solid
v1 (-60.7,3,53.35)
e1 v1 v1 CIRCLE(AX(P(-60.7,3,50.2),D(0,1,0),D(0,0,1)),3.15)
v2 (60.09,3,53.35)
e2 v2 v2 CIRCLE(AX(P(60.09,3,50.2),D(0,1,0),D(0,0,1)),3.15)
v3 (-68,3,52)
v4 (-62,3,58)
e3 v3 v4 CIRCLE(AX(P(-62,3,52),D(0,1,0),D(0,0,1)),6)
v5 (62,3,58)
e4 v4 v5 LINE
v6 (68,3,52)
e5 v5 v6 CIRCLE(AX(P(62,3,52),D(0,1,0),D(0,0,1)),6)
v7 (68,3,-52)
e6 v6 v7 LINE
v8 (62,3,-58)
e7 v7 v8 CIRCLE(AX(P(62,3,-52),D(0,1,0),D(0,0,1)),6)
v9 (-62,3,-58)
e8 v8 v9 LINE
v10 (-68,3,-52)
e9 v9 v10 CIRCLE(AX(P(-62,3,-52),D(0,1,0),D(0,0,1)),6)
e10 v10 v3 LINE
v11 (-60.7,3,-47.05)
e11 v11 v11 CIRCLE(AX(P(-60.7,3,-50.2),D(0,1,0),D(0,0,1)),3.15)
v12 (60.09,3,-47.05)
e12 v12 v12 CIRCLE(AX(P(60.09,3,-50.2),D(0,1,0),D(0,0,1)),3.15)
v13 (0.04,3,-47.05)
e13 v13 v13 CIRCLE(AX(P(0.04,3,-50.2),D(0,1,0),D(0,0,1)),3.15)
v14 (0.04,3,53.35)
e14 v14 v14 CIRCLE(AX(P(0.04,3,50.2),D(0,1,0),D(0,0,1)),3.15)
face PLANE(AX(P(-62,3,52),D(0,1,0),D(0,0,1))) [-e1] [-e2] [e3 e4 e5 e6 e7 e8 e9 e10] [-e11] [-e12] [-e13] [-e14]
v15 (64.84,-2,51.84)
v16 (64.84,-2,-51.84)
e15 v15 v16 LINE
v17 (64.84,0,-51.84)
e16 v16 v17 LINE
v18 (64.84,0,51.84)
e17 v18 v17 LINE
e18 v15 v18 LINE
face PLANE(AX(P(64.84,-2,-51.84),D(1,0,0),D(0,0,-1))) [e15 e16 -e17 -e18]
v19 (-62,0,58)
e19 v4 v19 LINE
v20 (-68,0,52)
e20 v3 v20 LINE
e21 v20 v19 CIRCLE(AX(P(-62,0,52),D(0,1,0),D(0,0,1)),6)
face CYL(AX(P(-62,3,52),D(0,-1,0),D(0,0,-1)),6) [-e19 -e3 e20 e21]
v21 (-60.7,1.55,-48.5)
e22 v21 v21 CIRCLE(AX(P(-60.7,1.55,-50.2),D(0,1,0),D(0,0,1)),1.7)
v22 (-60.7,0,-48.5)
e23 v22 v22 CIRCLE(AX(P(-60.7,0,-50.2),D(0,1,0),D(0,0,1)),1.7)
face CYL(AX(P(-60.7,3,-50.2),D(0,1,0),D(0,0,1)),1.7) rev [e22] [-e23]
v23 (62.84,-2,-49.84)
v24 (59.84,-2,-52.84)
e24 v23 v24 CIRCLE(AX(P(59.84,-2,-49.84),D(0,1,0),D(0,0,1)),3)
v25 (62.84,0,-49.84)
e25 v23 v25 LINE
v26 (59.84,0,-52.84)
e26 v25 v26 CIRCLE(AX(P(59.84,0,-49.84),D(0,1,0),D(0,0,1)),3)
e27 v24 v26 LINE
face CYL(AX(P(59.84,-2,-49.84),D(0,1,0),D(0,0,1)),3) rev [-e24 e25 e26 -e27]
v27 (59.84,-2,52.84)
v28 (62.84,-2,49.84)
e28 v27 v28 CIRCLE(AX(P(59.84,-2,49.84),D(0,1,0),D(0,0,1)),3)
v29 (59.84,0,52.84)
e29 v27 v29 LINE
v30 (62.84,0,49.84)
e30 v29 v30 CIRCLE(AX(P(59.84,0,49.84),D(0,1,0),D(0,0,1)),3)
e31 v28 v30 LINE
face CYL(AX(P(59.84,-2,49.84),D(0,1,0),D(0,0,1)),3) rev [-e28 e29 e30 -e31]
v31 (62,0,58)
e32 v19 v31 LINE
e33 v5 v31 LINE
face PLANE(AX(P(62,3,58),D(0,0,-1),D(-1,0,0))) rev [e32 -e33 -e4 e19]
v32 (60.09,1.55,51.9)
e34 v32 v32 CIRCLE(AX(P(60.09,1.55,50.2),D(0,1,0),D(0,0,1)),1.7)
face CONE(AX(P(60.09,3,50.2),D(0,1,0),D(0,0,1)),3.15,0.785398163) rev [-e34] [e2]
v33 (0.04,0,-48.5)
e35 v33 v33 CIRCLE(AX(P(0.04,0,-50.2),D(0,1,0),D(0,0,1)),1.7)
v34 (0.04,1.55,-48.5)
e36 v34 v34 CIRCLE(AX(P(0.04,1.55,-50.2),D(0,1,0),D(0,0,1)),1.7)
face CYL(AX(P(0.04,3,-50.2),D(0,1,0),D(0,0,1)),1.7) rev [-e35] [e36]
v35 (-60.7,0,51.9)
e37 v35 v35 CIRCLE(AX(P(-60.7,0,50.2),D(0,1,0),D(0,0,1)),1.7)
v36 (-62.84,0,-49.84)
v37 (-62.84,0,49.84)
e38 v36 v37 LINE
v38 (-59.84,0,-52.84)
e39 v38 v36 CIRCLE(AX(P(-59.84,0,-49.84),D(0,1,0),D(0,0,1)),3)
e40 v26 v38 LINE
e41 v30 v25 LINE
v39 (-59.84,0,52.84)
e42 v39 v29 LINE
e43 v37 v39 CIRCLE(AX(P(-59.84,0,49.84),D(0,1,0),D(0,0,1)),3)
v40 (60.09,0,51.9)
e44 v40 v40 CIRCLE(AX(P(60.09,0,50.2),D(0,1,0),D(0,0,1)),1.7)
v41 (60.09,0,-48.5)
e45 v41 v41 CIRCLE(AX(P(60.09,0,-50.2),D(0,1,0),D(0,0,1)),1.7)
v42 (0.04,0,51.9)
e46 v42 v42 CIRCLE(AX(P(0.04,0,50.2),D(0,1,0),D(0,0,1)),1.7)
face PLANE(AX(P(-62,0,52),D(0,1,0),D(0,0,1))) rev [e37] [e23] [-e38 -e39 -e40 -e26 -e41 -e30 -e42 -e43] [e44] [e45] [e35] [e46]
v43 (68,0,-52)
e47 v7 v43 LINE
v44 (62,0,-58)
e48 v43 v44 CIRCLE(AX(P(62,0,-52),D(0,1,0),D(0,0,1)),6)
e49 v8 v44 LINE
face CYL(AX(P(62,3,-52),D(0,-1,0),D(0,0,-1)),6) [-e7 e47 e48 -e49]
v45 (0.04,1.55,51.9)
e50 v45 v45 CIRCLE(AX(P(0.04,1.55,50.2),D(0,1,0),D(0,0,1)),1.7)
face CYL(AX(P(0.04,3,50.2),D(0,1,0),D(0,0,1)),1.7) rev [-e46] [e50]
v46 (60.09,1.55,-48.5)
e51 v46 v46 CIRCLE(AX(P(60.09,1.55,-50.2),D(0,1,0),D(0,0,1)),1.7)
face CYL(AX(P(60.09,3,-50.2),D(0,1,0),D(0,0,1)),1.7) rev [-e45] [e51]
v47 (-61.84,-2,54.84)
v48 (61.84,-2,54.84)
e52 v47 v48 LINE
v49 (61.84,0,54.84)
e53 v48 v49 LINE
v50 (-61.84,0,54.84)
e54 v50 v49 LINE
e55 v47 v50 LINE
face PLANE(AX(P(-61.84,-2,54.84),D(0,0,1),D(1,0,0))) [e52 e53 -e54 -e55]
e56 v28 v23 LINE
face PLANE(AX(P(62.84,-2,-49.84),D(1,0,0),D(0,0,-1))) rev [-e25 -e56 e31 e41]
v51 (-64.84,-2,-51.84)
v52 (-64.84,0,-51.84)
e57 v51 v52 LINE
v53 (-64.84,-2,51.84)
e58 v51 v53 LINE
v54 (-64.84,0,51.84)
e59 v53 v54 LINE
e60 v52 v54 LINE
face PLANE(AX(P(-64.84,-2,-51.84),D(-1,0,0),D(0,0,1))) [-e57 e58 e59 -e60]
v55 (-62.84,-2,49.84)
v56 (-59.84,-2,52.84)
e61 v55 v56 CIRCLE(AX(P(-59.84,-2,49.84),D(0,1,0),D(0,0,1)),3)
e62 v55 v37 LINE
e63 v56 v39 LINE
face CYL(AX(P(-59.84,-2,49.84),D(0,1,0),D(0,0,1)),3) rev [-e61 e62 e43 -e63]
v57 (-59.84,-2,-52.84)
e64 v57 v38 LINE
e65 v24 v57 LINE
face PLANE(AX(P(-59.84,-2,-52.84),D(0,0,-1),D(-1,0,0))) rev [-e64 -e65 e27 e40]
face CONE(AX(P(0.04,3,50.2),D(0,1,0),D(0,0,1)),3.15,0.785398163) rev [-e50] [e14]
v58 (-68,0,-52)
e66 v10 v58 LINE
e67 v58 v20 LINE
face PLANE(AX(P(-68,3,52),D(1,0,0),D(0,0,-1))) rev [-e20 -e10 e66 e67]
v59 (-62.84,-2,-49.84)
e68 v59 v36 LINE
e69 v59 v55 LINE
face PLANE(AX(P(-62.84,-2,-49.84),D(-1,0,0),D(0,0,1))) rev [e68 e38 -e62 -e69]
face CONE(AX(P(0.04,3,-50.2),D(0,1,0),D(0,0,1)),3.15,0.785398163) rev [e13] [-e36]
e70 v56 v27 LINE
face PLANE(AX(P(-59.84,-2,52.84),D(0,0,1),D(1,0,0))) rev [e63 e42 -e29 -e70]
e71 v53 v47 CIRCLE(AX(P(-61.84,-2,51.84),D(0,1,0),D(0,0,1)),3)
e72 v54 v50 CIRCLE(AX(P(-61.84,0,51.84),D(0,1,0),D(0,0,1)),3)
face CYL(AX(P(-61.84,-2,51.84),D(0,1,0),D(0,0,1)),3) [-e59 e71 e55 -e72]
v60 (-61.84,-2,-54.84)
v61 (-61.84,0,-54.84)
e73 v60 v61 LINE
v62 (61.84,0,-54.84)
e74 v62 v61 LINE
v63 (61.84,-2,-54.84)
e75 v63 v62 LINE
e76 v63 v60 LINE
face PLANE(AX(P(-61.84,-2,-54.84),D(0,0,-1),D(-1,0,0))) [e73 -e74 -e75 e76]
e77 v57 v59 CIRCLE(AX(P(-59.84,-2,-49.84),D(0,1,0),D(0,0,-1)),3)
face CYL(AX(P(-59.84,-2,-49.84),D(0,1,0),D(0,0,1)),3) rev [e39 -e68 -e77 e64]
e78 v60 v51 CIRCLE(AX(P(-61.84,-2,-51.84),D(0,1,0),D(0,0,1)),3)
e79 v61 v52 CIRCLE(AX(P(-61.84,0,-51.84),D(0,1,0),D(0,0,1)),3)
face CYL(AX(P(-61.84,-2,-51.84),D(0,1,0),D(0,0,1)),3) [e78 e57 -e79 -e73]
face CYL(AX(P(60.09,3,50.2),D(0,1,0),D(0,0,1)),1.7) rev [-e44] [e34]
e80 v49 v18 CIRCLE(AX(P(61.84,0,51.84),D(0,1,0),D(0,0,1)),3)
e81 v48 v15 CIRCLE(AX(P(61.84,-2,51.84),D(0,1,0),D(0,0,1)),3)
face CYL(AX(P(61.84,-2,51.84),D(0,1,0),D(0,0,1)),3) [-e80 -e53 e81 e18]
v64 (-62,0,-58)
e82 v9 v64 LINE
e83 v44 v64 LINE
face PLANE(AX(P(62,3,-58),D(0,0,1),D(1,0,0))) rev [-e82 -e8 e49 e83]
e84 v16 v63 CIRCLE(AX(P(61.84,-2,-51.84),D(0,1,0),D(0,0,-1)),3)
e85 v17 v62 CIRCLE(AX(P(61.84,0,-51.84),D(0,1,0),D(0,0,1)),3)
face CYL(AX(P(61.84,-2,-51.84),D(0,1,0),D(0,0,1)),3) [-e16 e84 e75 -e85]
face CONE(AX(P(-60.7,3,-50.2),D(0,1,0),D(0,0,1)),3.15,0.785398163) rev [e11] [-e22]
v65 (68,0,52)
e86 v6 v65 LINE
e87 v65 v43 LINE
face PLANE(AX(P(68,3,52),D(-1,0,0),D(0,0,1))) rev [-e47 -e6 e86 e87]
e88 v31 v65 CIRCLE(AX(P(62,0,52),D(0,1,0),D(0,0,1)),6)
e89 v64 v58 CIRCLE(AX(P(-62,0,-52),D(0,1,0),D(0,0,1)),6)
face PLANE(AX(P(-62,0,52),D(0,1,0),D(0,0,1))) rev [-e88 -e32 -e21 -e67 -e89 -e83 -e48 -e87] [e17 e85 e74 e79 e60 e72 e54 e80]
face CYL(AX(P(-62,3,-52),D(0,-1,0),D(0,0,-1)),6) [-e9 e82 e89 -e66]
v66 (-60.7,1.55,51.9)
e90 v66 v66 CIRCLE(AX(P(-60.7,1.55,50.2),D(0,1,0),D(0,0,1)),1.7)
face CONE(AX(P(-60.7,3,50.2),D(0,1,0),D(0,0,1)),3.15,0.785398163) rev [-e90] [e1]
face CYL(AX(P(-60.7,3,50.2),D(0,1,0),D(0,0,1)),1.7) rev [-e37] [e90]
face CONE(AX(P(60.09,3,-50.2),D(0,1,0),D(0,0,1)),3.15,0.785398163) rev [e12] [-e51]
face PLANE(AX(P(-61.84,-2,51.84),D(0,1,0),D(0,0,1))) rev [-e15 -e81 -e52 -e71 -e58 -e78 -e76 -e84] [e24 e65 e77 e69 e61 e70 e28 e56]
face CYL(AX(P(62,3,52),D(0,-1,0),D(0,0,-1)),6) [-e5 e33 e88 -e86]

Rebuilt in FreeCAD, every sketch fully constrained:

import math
import FreeCAD as App
import Part
import Sketcher

V = App.Vector

doc = App.newDocument("Part")
body = doc.addObject("PartDesign::Body", "Body")

sketch1 = body.newObject("Sketcher::SketchObject", "Sketch")
sketch1.AttachmentSupport = (doc.getObject("XZ_Plane"), [""])
sketch1.MapMode = "FlatFace"
sketch1.addGeometry(Part.LineSegment(V(-62, 58, 0), V(62, 58, 0)), False)
sketch1.addGeometry(Part.ArcOfCircle(Part.Circle(V(62, 52, 0), V(0, 0, 1), 6), math.radians(0), math.radians(90)), False)
sketch1.addGeometry(Part.LineSegment(V(68, 52, 0), V(68, -52, 0)), False)
sketch1.addGeometry(Part.ArcOfCircle(Part.Circle(V(62, -52, 0), V(0, 0, 1), 6), math.radians(-90), math.radians(0)), False)
sketch1.addGeometry(Part.LineSegment(V(62, -58, 0), V(-62, -58, 0)), False)
sketch1.addGeometry(Part.ArcOfCircle(Part.Circle(V(-62, -52, 0), V(0, 0, 1), 6), math.radians(180), math.radians(270)), False)
sketch1.addGeometry(Part.LineSegment(V(-68, -52, 0), V(-68, 52, 0)), False)
sketch1.addGeometry(Part.ArcOfCircle(Part.Circle(V(-62, 52, 0), V(0, 0, 1), 6), math.radians(90), math.radians(180)), False)
sketch1.addConstraint(Sketcher.Constraint("Tangent", 0, 2, 1, 2))
sketch1.addConstraint(Sketcher.Constraint("Tangent", 1, 1, 2, 1))
sketch1.addConstraint(Sketcher.Constraint("Tangent", 2, 2, 3, 2))
sketch1.addConstraint(Sketcher.Constraint("Tangent", 3, 1, 4, 1))
sketch1.addConstraint(Sketcher.Constraint("Tangent", 4, 2, 5, 2))
sketch1.addConstraint(Sketcher.Constraint("Tangent", 5, 1, 6, 1))
sketch1.addConstraint(Sketcher.Constraint("Tangent", 6, 2, 7, 2))
sketch1.addConstraint(Sketcher.Constraint("Tangent", 7, 1, 0, 1))
sketch1.addConstraint(Sketcher.Constraint("Horizontal", 0))
sketch1.addConstraint(Sketcher.Constraint("Vertical", 2))
sketch1.addConstraint(Sketcher.Constraint("Horizontal", 4))
sketch1.addConstraint(Sketcher.Constraint("Vertical", 6))
sketch1.addConstraint(Sketcher.Constraint("Equal", 1, 3))
sketch1.addConstraint(Sketcher.Constraint("Equal", 3, 5))
sketch1.addConstraint(Sketcher.Constraint("Equal", 5, 7))
sketch1.addConstraint(Sketcher.Constraint("Symmetric", 1, 3, 5, 3, -1, 1))
sketch1.addConstraint(Sketcher.Constraint("Radius", 1, 6.0))
sketch1.addConstraint(Sketcher.Constraint("DistanceX", 0, 1, 0, 2, 124.0))
sketch1.addConstraint(Sketcher.Constraint("DistanceY", 2, 2, 2, 1, 104.0))
pad1 = body.newObject("PartDesign::Pad", "Pad")
pad1.Profile = sketch1
pad1.Length = 3
pad1.Reversed = True

sketch2 = body.newObject("Sketcher::SketchObject", "Sketch001")
sketch2.AttachmentSupport = (doc.getObject("XZ_Plane"), [""])
sketch2.MapMode = "FlatFace"
sketch2.AttachmentOffset = App.Placement(V(0, 0, -3), App.Rotation())
sketch2.addGeometry(Part.LineSegment(V(61.8, -54.8, 0), V(-61.8, -54.8, 0)), False)
sketch2.addGeometry(Part.ArcOfCircle(Part.Circle(V(-61.8, -51.8, 0), V(0, 0, 1), 3), math.radians(180), math.radians(270)), False)
sketch2.addGeometry(Part.LineSegment(V(-64.8, -51.8, 0), V(-64.8, 51.8, 0)), False)
sketch2.addGeometry(Part.ArcOfCircle(Part.Circle(V(-61.8, 51.8, 0), V(0, 0, 1), 3), math.radians(90), math.radians(180)), False)
sketch2.addGeometry(Part.LineSegment(V(-61.8, 54.8, 0), V(61.8, 54.8, 0)), False)
sketch2.addGeometry(Part.ArcOfCircle(Part.Circle(V(61.8, 51.8, 0), V(0, 0, 1), 3), math.radians(0), math.radians(90)), False)
sketch2.addGeometry(Part.LineSegment(V(64.8, 51.8, 0), V(64.8, -51.8, 0)), False)
sketch2.addGeometry(Part.ArcOfCircle(Part.Circle(V(61.8, -51.8, 0), V(0, 0, 1), 3), math.radians(-90), math.radians(0)), False)
sketch2.addGeometry(Part.ArcOfCircle(Part.Circle(V(-59.8, -49.8, 0), V(0, 0, 1), 3), math.radians(180), math.radians(270)), False)
sketch2.addGeometry(Part.LineSegment(V(-59.8, -52.8, 0), V(59.8, -52.8, 0)), False)
sketch2.addGeometry(Part.ArcOfCircle(Part.Circle(V(59.8, -49.8, 0), V(0, 0, 1), 3), math.radians(-90), math.radians(0)), False)
sketch2.addGeometry(Part.LineSegment(V(62.8, -49.8, 0), V(62.8, 49.8, 0)), False)
sketch2.addGeometry(Part.ArcOfCircle(Part.Circle(V(59.8, 49.8, 0), V(0, 0, 1), 3), math.radians(0), math.radians(90)), False)
sketch2.addGeometry(Part.LineSegment(V(59.8, 52.8, 0), V(-59.8, 52.8, 0)), False)
sketch2.addGeometry(Part.ArcOfCircle(Part.Circle(V(-59.8, 49.8, 0), V(0, 0, 1), 3), math.radians(90), math.radians(180)), False)
sketch2.addGeometry(Part.LineSegment(V(-62.8, 49.8, 0), V(-62.8, -49.8, 0)), False)
sketch2.addConstraint(Sketcher.Constraint("Tangent", 0, 2, 1, 2))
sketch2.addConstraint(Sketcher.Constraint("Tangent", 1, 1, 2, 1))
sketch2.addConstraint(Sketcher.Constraint("Tangent", 2, 2, 3, 2))
sketch2.addConstraint(Sketcher.Constraint("Tangent", 3, 1, 4, 1))
sketch2.addConstraint(Sketcher.Constraint("Tangent", 4, 2, 5, 2))
sketch2.addConstraint(Sketcher.Constraint("Tangent", 5, 1, 6, 1))
sketch2.addConstraint(Sketcher.Constraint("Tangent", 6, 2, 7, 2))
sketch2.addConstraint(Sketcher.Constraint("Tangent", 7, 1, 0, 1))
sketch2.addConstraint(Sketcher.Constraint("Tangent", 8, 2, 9, 1))
sketch2.addConstraint(Sketcher.Constraint("Tangent", 9, 2, 10, 1))
sketch2.addConstraint(Sketcher.Constraint("Tangent", 10, 2, 11, 1))
sketch2.addConstraint(Sketcher.Constraint("Tangent", 11, 2, 12, 1))
sketch2.addConstraint(Sketcher.Constraint("Tangent", 12, 2, 13, 1))
sketch2.addConstraint(Sketcher.Constraint("Tangent", 13, 2, 14, 1))
sketch2.addConstraint(Sketcher.Constraint("Tangent", 14, 2, 15, 1))
sketch2.addConstraint(Sketcher.Constraint("Tangent", 15, 2, 8, 1))
sketch2.addConstraint(Sketcher.Constraint("Horizontal", 0))
sketch2.addConstraint(Sketcher.Constraint("Vertical", 2))
sketch2.addConstraint(Sketcher.Constraint("Horizontal", 4))
sketch2.addConstraint(Sketcher.Constraint("Vertical", 6))
sketch2.addConstraint(Sketcher.Constraint("Horizontal", 9))
sketch2.addConstraint(Sketcher.Constraint("Vertical", 11))
sketch2.addConstraint(Sketcher.Constraint("Horizontal", 13))
sketch2.addConstraint(Sketcher.Constraint("Vertical", 15))
sketch2.addConstraint(Sketcher.Constraint("Equal", 1, 3))
sketch2.addConstraint(Sketcher.Constraint("Equal", 3, 5))
sketch2.addConstraint(Sketcher.Constraint("Equal", 5, 7))
sketch2.addConstraint(Sketcher.Constraint("Equal", 7, 8))
sketch2.addConstraint(Sketcher.Constraint("Equal", 8, 10))
sketch2.addConstraint(Sketcher.Constraint("Equal", 10, 12))
sketch2.addConstraint(Sketcher.Constraint("Equal", 12, 14))
sketch2.addConstraint(Sketcher.Constraint("Symmetric", 1, 3, 5, 3, -1, 1))
sketch2.addConstraint(Sketcher.Constraint("Symmetric", 8, 3, 12, 3, -1, 1))
sketch2.addConstraint(Sketcher.Constraint("Radius", 1, 3.0))
sketch2.addConstraint(Sketcher.Constraint("DistanceX", 1, 3, 8, 3, 2.0))
sketch2.addConstraint(Sketcher.Constraint("DistanceY", 1, 3, 8, 3, 2.0))
sketch2.addConstraint(Sketcher.Constraint("DistanceX", 0, 2, 0, 1, 123.68))
sketch2.addConstraint(Sketcher.Constraint("DistanceY", 2, 1, 2, 2, 103.68))
pad2 = body.newObject("PartDesign::Pad", "Pad001")
pad2.Profile = sketch2
pad2.Length = 5

sketch3 = body.newObject("Sketcher::SketchObject", "Sketch002")
sketch3.AttachmentSupport = (doc.getObject("XZ_Plane"), [""])
sketch3.MapMode = "FlatFace"
sketch3.AttachmentOffset = App.Placement(V(0, 0, -3), App.Rotation())
sketch3.addGeometry(Part.Circle(V(-60.7, -50.2, 0), V(0, 0, 1), 1.7), False)
sketch3.addGeometry(Part.Circle(V(0, -50.2, 0), V(0, 0, 1), 1.7), False)
sketch3.addGeometry(Part.Circle(V(60.1, -50.2, 0), V(0, 0, 1), 1.7), False)
sketch3.addGeometry(Part.Circle(V(-60.7, 50.2, 0), V(0, 0, 1), 1.7), False)
sketch3.addGeometry(Part.Circle(V(0, 50.2, 0), V(0, 0, 1), 1.7), False)
sketch3.addGeometry(Part.Circle(V(60.1, 50.2, 0), V(0, 0, 1), 1.7), False)
sketch3.addConstraint(Sketcher.Constraint("Equal", 0, 1))
sketch3.addConstraint(Sketcher.Constraint("Equal", 1, 2))
sketch3.addConstraint(Sketcher.Constraint("Equal", 2, 3))
sketch3.addConstraint(Sketcher.Constraint("Equal", 3, 4))
sketch3.addConstraint(Sketcher.Constraint("Equal", 4, 5))
sketch3.addConstraint(Sketcher.Constraint("Symmetric", 0, 3, 3, 3, -1))
sketch3.addConstraint(Sketcher.Constraint("Symmetric", 1, 3, 4, 3, -1))
sketch3.addConstraint(Sketcher.Constraint("Symmetric", 2, 3, 5, 3, -1))
sketch3.addConstraint(Sketcher.Constraint("Horizontal", 0, 3, 1, 3))
sketch3.addConstraint(Sketcher.Constraint("Horizontal", 1, 3, 2, 3))
sketch3.addConstraint(Sketcher.Constraint("Diameter", 0, 3.4))
sketch3.addConstraint(Sketcher.Constraint("DistanceX", 0, 3, -1, 1, 60.7))
sketch3.addConstraint(Sketcher.Constraint("DistanceY", 0, 3, -1, 1, 50.2))
sketch3.addConstraint(Sketcher.Constraint("DistanceX", -1, 1, 1, 3, 0.04))
sketch3.addConstraint(Sketcher.Constraint("DistanceX", -1, 1, 2, 3, 60.09))
doc.recompute()
hole = body.newObject("PartDesign::Hole", "Hole")
hole.Profile = sketch3
hole.ThreadType = "None"
hole.Diameter = 3.4
hole.DepthType = "Dimension"
hole.Depth = 6
hole.DrillPoint = "Angled"
hole.DrillPointAngle = 118
hole.HoleCutType = "Countersink"
hole.HoleCutDiameter = 6.3
hole.HoleCutCountersinkAngle = 90
hole.Reversed = True

doc.recompute()
